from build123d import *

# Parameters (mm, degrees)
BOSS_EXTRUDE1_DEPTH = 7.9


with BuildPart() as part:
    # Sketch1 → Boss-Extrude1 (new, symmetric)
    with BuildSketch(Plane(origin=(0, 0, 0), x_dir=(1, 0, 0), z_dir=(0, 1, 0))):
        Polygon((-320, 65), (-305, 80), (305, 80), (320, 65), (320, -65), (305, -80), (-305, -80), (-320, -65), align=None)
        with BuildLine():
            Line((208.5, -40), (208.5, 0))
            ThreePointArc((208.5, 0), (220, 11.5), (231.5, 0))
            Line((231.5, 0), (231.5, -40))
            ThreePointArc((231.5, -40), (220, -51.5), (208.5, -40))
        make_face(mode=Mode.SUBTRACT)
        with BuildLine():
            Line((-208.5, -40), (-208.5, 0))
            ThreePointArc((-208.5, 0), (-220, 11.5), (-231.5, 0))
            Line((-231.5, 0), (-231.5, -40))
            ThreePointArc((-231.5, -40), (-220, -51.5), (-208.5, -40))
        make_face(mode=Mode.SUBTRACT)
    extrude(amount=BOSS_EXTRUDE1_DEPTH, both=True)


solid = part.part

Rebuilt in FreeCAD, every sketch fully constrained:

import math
import FreeCAD as App
import Part
import Sketcher
from FreeCAD import Vector
Q = App.Units.Quantity


def add_polygon(sketch, points):
    """Adds a closed chain of lines whose ends are joined by coincident constraints."""
    first, n = sketch.GeometryCount, len(points)
    for a, b in zip(points, points[1:] + points[:1]):
        sketch.addGeometry(Part.LineSegment(App.Vector(*a, 0), App.Vector(*b, 0)), False)
    for i in range(n):
        sketch.addConstraint(Sketcher.Constraint("Coincident", first + i, 2, first + (i + 1) % n, 1))

doc = App.newDocument("Part")
params = doc.addObject("Spreadsheet::Sheet", "Params")
for row, (alias, value) in enumerate([
    ("sketch1_radius", "11.5 mm"),
    ("sketch1_width", "610 mm"),
    ("sketch1_height", "130 mm"),
    ("sketch1_height2", "40 mm"),
    ("pad1_length", "15.8 mm"),
], start=1):
    params.set(f"A{row}", alias)
    params.set(f"B{row}", "=" + value)
    params.setAlias(f"B{row}", alias)

body = doc.addObject("PartDesign::Body", "Body")

# Sketch on XZ plane
sketch1 = doc.addObject("Sketcher::SketchObject", "Sketch")
body.addObject(sketch1)
sketch1.AttachmentSupport = (doc.XZ_Plane, [""])
sketch1.MapMode = "FlatFace"
add_polygon(sketch1, [(-305, -80), (-320, -65), (-320, 65), (-305, 80), (305, 80), (320, 65), (320, -65), (305, -80)])  # lines 0-7
sketch1.addGeometry(Part.LineSegment(Vector(208, 40, 0), Vector(208, 0, 0)), False)  # 8
sketch1.addGeometry(Part.ArcOfCircle(Part.Circle(Vector(220, 0, 0), Vector(0, 0, 1), 12), math.radians(180), math.radians(360)), False)  # 9
sketch1.addGeometry(Part.LineSegment(Vector(232, 0, 0), Vector(232, 40, 0)), False)  # 10
sketch1.addGeometry(Part.ArcOfCircle(Part.Circle(Vector(220, 40, 0), Vector(0, 0, 1), 12), math.radians(0), math.radians(180)), False)  # 11
sketch1.addGeometry(Part.ArcOfCircle(Part.Circle(Vector(-220, 40, 0), Vector(0, 0, 1), 12), math.radians(0), math.radians(180)), False)  # 12
sketch1.addGeometry(Part.LineSegment(Vector(-232, 40, 0), Vector(-232, 0, 0)), False)  # 13
sketch1.addGeometry(Part.ArcOfCircle(Part.Circle(Vector(-220, 0, 0), Vector(0, 0, 1), 12), math.radians(180), math.radians(360)), False)  # 14
sketch1.addGeometry(Part.LineSegment(Vector(-208, 0, 0), Vector(-208, 40, 0)), False)  # 15
sketch1.addConstraint(Sketcher.Constraint("Tangent", 8, 2, 9, 1))
sketch1.addConstraint(Sketcher.Constraint("Tangent", 9, 2, 10, 1))
sketch1.addConstraint(Sketcher.Constraint("Tangent", 10, 2, 11, 1))
sketch1.addConstraint(Sketcher.Constraint("Tangent", 11, 2, 8, 1))
sketch1.addConstraint(Sketcher.Constraint("Tangent", 12, 2, 13, 1))
sketch1.addConstraint(Sketcher.Constraint("Tangent", 13, 2, 14, 1))
sketch1.addConstraint(Sketcher.Constraint("Tangent", 14, 2, 15, 1))
sketch1.addConstraint(Sketcher.Constraint("Tangent", 15, 2, 12, 1))
sketch1.addConstraint(Sketcher.Constraint("Vertical", 1))
sketch1.addConstraint(Sketcher.Constraint("Horizontal", 3))
sketch1.addConstraint(Sketcher.Constraint("Vertical", 5))
sketch1.addConstraint(Sketcher.Constraint("Horizontal", 7))
sketch1.addConstraint(Sketcher.Constraint("Vertical", 8))
sketch1.addConstraint(Sketcher.Constraint("Vertical", 10))
sketch1.addConstraint(Sketcher.Constraint("Vertical", 13))
sketch1.addConstraint(Sketcher.Constraint("Vertical", 15))
sketch1.addConstraint(Sketcher.Constraint("Equal", 11, 12))
sketch1.addConstraint(Sketcher.Constraint("Symmetric", 9, 3, 14, 3, -1, 1))
sketch1.addConstraint(Sketcher.Constraint("Symmetric", 0, 2, 4, 2, -1, 1))
sketch1.addConstraint(Sketcher.Constraint("Symmetric", 2, 2, 6, 2, -1, 1))
sketch1.addConstraint(Sketcher.Constraint("PointOnObject", 9, 3, -1))
sketch1.addConstraint(Sketcher.Constraint("Perpendicular", 0, 2))
sketch1.addConstraint(Sketcher.Constraint("Perpendicular", 2, 4))
sketch1.addConstraint(Sketcher.Constraint("Perpendicular", 4, 6))
sketch1.addConstraint(Sketcher.Constraint("Horizontal", 11, 3, 12, 3))
sketch1.addConstraint(Sketcher.Constraint("Horizontal", 1, 2, 4, 2))
sketch1.addConstraint(Sketcher.Constraint("Vertical", 3, 2, 6, 2))
sketch1.addConstraint(Sketcher.Constraint("Radius", 9, Q("11.5 mm")))
sketch1.addConstraint(Sketcher.Constraint("DistanceX", 3, 1, 3, 2, Q("610 mm")))
sketch1.addConstraint(Sketcher.Constraint("DistanceY", 1, 1, 1, 2, Q("130 mm")))
sketch1.addConstraint(Sketcher.Constraint("DistanceY", 8, 2, 8, 1, Q("40 mm")))
sketch1.addConstraint(Sketcher.Constraint("DistanceX", -1, 1, 9, 3, Q("220 mm")))
sketch1.addConstraint(Sketcher.Constraint("DistanceX", 0, 2, -1, 1, Q("320 mm")))
sketch1.setExpression("Constraints[35]", "Params.sketch1_radius")
sketch1.setExpression("Constraints[36]", "Params.sketch1_width")
sketch1.setExpression("Constraints[37]", "Params.sketch1_height")
sketch1.setExpression("Constraints[38]", "Params.sketch1_height2")
pad1 = doc.addObject("PartDesign::Pad", "Pad")
body.addObject(pad1)
pad1.Profile = sketch1
pad1.setExpression("Length", "Params.pad1_length")
pad1.Midplane = True

doc.recompute()
